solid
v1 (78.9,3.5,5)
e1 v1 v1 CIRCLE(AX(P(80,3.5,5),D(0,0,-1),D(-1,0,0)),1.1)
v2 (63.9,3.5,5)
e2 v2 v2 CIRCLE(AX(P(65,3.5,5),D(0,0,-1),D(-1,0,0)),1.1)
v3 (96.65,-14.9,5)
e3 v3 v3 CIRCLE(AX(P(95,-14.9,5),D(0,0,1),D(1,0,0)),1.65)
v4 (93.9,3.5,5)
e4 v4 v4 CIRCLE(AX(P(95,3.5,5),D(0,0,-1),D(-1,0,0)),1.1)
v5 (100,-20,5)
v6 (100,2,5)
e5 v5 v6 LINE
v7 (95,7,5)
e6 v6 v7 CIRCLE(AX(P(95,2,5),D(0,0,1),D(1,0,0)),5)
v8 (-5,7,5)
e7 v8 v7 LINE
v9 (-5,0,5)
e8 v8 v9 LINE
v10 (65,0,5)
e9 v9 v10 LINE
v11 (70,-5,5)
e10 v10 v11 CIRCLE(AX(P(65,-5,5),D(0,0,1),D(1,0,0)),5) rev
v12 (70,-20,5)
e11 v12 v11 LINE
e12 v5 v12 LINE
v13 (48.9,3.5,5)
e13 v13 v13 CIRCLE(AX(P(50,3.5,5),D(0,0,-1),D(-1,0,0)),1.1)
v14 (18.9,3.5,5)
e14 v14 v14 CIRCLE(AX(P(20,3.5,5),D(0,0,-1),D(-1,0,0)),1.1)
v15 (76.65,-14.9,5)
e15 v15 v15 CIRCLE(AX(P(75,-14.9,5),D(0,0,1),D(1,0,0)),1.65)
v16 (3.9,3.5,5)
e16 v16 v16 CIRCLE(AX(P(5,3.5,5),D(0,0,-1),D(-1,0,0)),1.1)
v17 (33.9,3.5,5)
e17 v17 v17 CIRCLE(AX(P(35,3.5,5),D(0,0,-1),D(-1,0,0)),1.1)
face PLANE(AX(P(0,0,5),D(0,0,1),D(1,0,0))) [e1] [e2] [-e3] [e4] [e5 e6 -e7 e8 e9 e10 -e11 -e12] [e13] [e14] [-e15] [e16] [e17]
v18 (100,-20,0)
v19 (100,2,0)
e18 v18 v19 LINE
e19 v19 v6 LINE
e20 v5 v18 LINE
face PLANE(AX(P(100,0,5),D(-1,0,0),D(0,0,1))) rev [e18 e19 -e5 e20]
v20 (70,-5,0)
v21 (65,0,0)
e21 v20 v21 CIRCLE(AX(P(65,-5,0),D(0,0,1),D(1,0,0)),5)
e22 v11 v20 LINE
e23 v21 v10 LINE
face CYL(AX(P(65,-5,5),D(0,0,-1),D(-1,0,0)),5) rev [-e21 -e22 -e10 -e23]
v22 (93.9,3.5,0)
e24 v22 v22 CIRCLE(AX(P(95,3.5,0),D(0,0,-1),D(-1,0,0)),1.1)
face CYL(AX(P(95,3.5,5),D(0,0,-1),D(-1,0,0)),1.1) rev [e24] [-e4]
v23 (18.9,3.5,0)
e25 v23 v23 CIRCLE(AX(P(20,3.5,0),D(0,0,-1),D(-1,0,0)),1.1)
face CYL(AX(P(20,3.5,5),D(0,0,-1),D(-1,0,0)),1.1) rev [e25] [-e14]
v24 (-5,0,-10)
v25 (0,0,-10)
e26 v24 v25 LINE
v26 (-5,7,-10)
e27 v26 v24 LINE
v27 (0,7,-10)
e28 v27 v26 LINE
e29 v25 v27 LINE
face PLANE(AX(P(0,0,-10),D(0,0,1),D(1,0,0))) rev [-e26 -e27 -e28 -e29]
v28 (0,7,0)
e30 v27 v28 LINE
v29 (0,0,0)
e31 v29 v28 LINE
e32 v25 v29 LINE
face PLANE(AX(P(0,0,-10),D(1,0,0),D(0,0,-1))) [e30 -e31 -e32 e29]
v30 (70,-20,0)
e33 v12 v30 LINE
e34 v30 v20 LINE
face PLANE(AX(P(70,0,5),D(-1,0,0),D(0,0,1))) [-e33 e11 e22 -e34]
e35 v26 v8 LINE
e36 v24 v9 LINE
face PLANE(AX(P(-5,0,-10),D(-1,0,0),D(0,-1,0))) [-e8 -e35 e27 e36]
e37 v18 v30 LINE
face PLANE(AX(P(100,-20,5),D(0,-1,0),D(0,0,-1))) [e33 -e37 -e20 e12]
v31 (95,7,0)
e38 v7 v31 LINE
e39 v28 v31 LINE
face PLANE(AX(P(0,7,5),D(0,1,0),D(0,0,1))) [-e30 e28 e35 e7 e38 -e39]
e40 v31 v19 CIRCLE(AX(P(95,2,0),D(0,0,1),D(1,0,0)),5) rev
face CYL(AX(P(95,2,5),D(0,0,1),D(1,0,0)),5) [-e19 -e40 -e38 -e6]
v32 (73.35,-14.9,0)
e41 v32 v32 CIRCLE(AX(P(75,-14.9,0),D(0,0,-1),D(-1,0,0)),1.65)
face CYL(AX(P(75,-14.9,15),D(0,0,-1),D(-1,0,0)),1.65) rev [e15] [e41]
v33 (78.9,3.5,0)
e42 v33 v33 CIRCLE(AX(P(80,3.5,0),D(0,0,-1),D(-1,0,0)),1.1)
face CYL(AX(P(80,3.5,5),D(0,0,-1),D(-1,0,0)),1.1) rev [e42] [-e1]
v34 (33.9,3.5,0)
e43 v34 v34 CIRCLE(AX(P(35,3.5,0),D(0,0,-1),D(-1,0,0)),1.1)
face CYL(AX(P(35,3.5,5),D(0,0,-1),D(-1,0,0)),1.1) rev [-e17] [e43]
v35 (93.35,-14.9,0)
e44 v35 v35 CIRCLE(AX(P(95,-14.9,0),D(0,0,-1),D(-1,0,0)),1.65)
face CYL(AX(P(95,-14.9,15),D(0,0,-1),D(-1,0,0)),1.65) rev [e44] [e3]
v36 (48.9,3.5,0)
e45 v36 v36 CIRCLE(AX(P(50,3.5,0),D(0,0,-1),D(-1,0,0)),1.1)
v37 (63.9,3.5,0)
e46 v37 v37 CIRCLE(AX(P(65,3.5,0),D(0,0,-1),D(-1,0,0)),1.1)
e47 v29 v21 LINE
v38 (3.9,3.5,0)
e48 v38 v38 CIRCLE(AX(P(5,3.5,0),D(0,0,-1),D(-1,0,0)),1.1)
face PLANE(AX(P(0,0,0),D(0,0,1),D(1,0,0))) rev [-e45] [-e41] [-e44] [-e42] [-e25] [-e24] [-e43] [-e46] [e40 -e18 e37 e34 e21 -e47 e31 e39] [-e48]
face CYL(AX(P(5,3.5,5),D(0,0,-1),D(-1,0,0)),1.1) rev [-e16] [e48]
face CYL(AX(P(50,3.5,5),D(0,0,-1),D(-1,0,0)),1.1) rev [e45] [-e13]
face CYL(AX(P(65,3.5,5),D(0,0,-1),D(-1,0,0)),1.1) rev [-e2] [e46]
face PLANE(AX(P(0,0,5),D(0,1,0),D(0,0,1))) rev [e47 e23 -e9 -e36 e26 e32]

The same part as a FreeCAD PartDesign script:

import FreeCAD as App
import Part
import Sketcher


def edges_at(feature, points):
    """Names of the edges that pass closest to the given points."""
    edges = feature.Shape.Edges
    near = lambda p: min(range(len(edges)), key=lambda i: edges[i].distToShape(Part.Vertex(*p))[0])
    return sorted({f"Edge{near(p) + 1}" for p in points})


def add_polygon(sketch, points):
    """Adds a closed chain of lines whose ends are joined by coincident constraints."""
    first, n = sketch.GeometryCount, len(points)
    for a, b in zip(points, points[1:] + points[:1]):
        sketch.addGeometry(Part.LineSegment(App.Vector(*a, 0), App.Vector(*b, 0)), False)
    for i in range(n):
        sketch.addConstraint(Sketcher.Constraint("Coincident", first + i, 2, first + (i + 1) % n, 1))

doc = App.newDocument("Part")
body = doc.addObject("PartDesign::Body", "Body")

# Sketch on XY plane
sketch1 = body.newObject("Sketcher::SketchObject", "Sketch")
sketch1.AttachmentSupport = (doc.getObject("XY_Plane"), [""])
sketch1.MapMode = "FlatFace"
add_polygon(sketch1, [(0, 7), (0, 0), (100, 0), (100, 7)])  # lines 0-3
sketch1.addConstraint([
    Sketcher.Constraint("Vertical", 0),
    Sketcher.Constraint("Horizontal", 1),
    Sketcher.Constraint("Vertical", 2),
    Sketcher.Constraint("Horizontal", 3),
    Sketcher.Constraint("Coincident", 0, 2, -1, 1),
    Sketcher.Constraint("DistanceX", 1, 1, 1, 2, 100.0),
    Sketcher.Constraint("DistanceY", 0, 2, 0, 1, 7.0),
])
pad1 = body.newObject("PartDesign::Pad", "Pad")
pad1.Profile = sketch1
pad1.Length = 5

# Sketch on XY plane
sketch2 = body.newObject("Sketcher::SketchObject", "Sketch001")
sketch2.AttachmentSupport = (doc.getObject("XY_Plane"), [""])
sketch2.MapMode = "FlatFace"
sketch2.addGeometry([
    Part.Circle(App.Vector(95, 3.5, 0), App.Vector(0, 0, 1), 1.1),  # 0
    Part.Circle(App.Vector(80, 3.5, 0), App.Vector(0, 0, 1), 1.1),  # 1
    Part.Circle(App.Vector(65, 3.5, 0), App.Vector(0, 0, 1), 1.1),  # 2
    Part.Circle(App.Vector(50, 3.5, 0), App.Vector(0, 0, 1), 1.1),  # 3
    Part.Circle(App.Vector(35, 3.5, 0), App.Vector(0, 0, 1), 1.1),  # 4
    Part.Circle(App.Vector(20, 3.5, 0), App.Vector(0, 0, 1), 1.1),  # 5
    Part.Circle(App.Vector(5, 3.5, 0), App.Vector(0, 0, 1), 1.1),  # 6
], False)
sketch2.addConstraint([
    Sketcher.Constraint("Equal", 0, 1),
    Sketcher.Constraint("Equal", 1, 2),
    Sketcher.Constraint("Equal", 2, 3),
    Sketcher.Constraint("Equal", 3, 4),
    Sketcher.Constraint("Equal", 4, 5),
    Sketcher.Constraint("Equal", 5, 6),
    Sketcher.Constraint("Horizontal", 0, 3, 1, 3),
    Sketcher.Constraint("Horizontal", 1, 3, 2, 3),
    Sketcher.Constraint("Horizontal", 2, 3, 3, 3),
    Sketcher.Constraint("Horizontal", 3, 3, 4, 3),
    Sketcher.Constraint("Horizontal", 4, 3, 5, 3),
    Sketcher.Constraint("Horizontal", 5, 3, 6, 3),
    Sketcher.Constraint("Diameter", 0, 2.2),
    Sketcher.Constraint("DistanceX", -1, 1, 0, 3, 95.0),
    Sketcher.Constraint("DistanceX", -1, 1, 1, 3, 80.0),
    Sketcher.Constraint("DistanceX", -1, 1, 2, 3, 65.0),
    Sketcher.Constraint("DistanceX", -1, 1, 3, 3, 50.0),
    Sketcher.Constraint("DistanceX", -1, 1, 4, 3, 35.0),
    Sketcher.Constraint("DistanceX", -1, 1, 5, 3, 20.0),
    Sketcher.Constraint("DistanceX", -1, 1, 6, 3, 5.0),
    Sketcher.Constraint("DistanceY", -1, 1, 0, 3, 3.5),
])
pocket1 = body.newObject("PartDesign::Pocket", "Pocket")
pocket1.Profile = sketch2
pocket1.Type = "ThroughAll"
pocket1.Reversed = True

# Sketch on XY plane
sketch3 = body.newObject("Sketcher::SketchObject", "Sketch002")
sketch3.AttachmentSupport = (doc.getObject("XY_Plane"), [""])
sketch3.MapMode = "FlatFace"
add_polygon(sketch3, [(100, 0), (100, -20), (70, -20), (70, 0)])  # lines 0-3
sketch3.addConstraint([
    Sketcher.Constraint("Vertical", 0),
    Sketcher.Constraint("Horizontal", 1),
    Sketcher.Constraint("Vertical", 2),
    Sketcher.Constraint("Horizontal", 3),
    Sketcher.Constraint("PointOnObject", 2, 2, -1),
    Sketcher.Constraint("DistanceX", 1, 2, 1, 1, 30.0),
    Sketcher.Constraint("DistanceY", 0, 2, 0, 1, 20.0),
    Sketcher.Constraint("DistanceX", -1, 1, 0, 2, 100.0),
])
pad2 = body.newObject("PartDesign::Pad", "Pad001")
pad2.Profile = sketch3
pad2.Length = 5

# Sketch on XY plane
sketch4 = body.newObject("Sketcher::SketchObject", "Sketch003")
sketch4.AttachmentSupport = (doc.getObject("XY_Plane"), [""])
sketch4.MapMode = "FlatFace"
sketch4.AttachmentOffset = App.Placement(App.Vector(0, 0, 5), App.Rotation())
add_polygon(sketch4, [(-5, 7), (-5, 0), (0, 0), (0, 7)])  # lines 0-3
sketch4.addConstraint([
    Sketcher.Constraint("Vertical", 0),
    Sketcher.Constraint("Horizontal", 1),
    Sketcher.Constraint("Vertical", 2),
    Sketcher.Constraint("Horizontal", 3),
    Sketcher.Constraint("Coincident", 1, 2, -1, 1),
    Sketcher.Constraint("DistanceX", 1, 1, 1, 2, 5.0),
    Sketcher.Constraint("DistanceY", 0, 2, 0, 1, 7.0),
])
pad3 = body.newObject("PartDesign::Pad", "Pad002")
pad3.Profile = sketch4
pad3.Length = 15
pad3.Reversed = True

# Sketch on XY plane
sketch5 = body.newObject("Sketcher::SketchObject", "Sketch004")
sketch5.AttachmentSupport = (doc.getObject("XY_Plane"), [""])
sketch5.MapMode = "FlatFace"
sketch5.addGeometry([
    Part.Circle(App.Vector(95, -14.9, 0), App.Vector(0, 0, 1), 1.6),
    Part.Circle(App.Vector(75, -14.9, 0), App.Vector(0, 0, 1), 1.6),
], False)
sketch5.addConstraint([
    Sketcher.Constraint("Equal", 0, 1),
    Sketcher.Constraint("Horizontal", 0, 3, 1, 3),
    Sketcher.Constraint("Diameter", 0, 3.3),
    Sketcher.Constraint("DistanceX", -1, 1, 0, 3, 95.0),
    Sketcher.Constraint("DistanceX", -1, 1, 1, 3, 75.0),
    Sketcher.Constraint("DistanceY", 0, 3, -1, 1, 14.9),
])
pocket2 = body.newObject("PartDesign::Pocket", "Pocket001")
pocket2.Profile = sketch5
pocket2.Length = 15
pocket2.Reversed = True
doc.recompute()

fillet = body.newObject("PartDesign::Fillet", "Fillet")
fillet.Base = (pocket2, edges_at(pocket2, [(70, 0, 2.5), (100, 7, 2.5)]))
fillet.Radius = 5

doc.recompute()
